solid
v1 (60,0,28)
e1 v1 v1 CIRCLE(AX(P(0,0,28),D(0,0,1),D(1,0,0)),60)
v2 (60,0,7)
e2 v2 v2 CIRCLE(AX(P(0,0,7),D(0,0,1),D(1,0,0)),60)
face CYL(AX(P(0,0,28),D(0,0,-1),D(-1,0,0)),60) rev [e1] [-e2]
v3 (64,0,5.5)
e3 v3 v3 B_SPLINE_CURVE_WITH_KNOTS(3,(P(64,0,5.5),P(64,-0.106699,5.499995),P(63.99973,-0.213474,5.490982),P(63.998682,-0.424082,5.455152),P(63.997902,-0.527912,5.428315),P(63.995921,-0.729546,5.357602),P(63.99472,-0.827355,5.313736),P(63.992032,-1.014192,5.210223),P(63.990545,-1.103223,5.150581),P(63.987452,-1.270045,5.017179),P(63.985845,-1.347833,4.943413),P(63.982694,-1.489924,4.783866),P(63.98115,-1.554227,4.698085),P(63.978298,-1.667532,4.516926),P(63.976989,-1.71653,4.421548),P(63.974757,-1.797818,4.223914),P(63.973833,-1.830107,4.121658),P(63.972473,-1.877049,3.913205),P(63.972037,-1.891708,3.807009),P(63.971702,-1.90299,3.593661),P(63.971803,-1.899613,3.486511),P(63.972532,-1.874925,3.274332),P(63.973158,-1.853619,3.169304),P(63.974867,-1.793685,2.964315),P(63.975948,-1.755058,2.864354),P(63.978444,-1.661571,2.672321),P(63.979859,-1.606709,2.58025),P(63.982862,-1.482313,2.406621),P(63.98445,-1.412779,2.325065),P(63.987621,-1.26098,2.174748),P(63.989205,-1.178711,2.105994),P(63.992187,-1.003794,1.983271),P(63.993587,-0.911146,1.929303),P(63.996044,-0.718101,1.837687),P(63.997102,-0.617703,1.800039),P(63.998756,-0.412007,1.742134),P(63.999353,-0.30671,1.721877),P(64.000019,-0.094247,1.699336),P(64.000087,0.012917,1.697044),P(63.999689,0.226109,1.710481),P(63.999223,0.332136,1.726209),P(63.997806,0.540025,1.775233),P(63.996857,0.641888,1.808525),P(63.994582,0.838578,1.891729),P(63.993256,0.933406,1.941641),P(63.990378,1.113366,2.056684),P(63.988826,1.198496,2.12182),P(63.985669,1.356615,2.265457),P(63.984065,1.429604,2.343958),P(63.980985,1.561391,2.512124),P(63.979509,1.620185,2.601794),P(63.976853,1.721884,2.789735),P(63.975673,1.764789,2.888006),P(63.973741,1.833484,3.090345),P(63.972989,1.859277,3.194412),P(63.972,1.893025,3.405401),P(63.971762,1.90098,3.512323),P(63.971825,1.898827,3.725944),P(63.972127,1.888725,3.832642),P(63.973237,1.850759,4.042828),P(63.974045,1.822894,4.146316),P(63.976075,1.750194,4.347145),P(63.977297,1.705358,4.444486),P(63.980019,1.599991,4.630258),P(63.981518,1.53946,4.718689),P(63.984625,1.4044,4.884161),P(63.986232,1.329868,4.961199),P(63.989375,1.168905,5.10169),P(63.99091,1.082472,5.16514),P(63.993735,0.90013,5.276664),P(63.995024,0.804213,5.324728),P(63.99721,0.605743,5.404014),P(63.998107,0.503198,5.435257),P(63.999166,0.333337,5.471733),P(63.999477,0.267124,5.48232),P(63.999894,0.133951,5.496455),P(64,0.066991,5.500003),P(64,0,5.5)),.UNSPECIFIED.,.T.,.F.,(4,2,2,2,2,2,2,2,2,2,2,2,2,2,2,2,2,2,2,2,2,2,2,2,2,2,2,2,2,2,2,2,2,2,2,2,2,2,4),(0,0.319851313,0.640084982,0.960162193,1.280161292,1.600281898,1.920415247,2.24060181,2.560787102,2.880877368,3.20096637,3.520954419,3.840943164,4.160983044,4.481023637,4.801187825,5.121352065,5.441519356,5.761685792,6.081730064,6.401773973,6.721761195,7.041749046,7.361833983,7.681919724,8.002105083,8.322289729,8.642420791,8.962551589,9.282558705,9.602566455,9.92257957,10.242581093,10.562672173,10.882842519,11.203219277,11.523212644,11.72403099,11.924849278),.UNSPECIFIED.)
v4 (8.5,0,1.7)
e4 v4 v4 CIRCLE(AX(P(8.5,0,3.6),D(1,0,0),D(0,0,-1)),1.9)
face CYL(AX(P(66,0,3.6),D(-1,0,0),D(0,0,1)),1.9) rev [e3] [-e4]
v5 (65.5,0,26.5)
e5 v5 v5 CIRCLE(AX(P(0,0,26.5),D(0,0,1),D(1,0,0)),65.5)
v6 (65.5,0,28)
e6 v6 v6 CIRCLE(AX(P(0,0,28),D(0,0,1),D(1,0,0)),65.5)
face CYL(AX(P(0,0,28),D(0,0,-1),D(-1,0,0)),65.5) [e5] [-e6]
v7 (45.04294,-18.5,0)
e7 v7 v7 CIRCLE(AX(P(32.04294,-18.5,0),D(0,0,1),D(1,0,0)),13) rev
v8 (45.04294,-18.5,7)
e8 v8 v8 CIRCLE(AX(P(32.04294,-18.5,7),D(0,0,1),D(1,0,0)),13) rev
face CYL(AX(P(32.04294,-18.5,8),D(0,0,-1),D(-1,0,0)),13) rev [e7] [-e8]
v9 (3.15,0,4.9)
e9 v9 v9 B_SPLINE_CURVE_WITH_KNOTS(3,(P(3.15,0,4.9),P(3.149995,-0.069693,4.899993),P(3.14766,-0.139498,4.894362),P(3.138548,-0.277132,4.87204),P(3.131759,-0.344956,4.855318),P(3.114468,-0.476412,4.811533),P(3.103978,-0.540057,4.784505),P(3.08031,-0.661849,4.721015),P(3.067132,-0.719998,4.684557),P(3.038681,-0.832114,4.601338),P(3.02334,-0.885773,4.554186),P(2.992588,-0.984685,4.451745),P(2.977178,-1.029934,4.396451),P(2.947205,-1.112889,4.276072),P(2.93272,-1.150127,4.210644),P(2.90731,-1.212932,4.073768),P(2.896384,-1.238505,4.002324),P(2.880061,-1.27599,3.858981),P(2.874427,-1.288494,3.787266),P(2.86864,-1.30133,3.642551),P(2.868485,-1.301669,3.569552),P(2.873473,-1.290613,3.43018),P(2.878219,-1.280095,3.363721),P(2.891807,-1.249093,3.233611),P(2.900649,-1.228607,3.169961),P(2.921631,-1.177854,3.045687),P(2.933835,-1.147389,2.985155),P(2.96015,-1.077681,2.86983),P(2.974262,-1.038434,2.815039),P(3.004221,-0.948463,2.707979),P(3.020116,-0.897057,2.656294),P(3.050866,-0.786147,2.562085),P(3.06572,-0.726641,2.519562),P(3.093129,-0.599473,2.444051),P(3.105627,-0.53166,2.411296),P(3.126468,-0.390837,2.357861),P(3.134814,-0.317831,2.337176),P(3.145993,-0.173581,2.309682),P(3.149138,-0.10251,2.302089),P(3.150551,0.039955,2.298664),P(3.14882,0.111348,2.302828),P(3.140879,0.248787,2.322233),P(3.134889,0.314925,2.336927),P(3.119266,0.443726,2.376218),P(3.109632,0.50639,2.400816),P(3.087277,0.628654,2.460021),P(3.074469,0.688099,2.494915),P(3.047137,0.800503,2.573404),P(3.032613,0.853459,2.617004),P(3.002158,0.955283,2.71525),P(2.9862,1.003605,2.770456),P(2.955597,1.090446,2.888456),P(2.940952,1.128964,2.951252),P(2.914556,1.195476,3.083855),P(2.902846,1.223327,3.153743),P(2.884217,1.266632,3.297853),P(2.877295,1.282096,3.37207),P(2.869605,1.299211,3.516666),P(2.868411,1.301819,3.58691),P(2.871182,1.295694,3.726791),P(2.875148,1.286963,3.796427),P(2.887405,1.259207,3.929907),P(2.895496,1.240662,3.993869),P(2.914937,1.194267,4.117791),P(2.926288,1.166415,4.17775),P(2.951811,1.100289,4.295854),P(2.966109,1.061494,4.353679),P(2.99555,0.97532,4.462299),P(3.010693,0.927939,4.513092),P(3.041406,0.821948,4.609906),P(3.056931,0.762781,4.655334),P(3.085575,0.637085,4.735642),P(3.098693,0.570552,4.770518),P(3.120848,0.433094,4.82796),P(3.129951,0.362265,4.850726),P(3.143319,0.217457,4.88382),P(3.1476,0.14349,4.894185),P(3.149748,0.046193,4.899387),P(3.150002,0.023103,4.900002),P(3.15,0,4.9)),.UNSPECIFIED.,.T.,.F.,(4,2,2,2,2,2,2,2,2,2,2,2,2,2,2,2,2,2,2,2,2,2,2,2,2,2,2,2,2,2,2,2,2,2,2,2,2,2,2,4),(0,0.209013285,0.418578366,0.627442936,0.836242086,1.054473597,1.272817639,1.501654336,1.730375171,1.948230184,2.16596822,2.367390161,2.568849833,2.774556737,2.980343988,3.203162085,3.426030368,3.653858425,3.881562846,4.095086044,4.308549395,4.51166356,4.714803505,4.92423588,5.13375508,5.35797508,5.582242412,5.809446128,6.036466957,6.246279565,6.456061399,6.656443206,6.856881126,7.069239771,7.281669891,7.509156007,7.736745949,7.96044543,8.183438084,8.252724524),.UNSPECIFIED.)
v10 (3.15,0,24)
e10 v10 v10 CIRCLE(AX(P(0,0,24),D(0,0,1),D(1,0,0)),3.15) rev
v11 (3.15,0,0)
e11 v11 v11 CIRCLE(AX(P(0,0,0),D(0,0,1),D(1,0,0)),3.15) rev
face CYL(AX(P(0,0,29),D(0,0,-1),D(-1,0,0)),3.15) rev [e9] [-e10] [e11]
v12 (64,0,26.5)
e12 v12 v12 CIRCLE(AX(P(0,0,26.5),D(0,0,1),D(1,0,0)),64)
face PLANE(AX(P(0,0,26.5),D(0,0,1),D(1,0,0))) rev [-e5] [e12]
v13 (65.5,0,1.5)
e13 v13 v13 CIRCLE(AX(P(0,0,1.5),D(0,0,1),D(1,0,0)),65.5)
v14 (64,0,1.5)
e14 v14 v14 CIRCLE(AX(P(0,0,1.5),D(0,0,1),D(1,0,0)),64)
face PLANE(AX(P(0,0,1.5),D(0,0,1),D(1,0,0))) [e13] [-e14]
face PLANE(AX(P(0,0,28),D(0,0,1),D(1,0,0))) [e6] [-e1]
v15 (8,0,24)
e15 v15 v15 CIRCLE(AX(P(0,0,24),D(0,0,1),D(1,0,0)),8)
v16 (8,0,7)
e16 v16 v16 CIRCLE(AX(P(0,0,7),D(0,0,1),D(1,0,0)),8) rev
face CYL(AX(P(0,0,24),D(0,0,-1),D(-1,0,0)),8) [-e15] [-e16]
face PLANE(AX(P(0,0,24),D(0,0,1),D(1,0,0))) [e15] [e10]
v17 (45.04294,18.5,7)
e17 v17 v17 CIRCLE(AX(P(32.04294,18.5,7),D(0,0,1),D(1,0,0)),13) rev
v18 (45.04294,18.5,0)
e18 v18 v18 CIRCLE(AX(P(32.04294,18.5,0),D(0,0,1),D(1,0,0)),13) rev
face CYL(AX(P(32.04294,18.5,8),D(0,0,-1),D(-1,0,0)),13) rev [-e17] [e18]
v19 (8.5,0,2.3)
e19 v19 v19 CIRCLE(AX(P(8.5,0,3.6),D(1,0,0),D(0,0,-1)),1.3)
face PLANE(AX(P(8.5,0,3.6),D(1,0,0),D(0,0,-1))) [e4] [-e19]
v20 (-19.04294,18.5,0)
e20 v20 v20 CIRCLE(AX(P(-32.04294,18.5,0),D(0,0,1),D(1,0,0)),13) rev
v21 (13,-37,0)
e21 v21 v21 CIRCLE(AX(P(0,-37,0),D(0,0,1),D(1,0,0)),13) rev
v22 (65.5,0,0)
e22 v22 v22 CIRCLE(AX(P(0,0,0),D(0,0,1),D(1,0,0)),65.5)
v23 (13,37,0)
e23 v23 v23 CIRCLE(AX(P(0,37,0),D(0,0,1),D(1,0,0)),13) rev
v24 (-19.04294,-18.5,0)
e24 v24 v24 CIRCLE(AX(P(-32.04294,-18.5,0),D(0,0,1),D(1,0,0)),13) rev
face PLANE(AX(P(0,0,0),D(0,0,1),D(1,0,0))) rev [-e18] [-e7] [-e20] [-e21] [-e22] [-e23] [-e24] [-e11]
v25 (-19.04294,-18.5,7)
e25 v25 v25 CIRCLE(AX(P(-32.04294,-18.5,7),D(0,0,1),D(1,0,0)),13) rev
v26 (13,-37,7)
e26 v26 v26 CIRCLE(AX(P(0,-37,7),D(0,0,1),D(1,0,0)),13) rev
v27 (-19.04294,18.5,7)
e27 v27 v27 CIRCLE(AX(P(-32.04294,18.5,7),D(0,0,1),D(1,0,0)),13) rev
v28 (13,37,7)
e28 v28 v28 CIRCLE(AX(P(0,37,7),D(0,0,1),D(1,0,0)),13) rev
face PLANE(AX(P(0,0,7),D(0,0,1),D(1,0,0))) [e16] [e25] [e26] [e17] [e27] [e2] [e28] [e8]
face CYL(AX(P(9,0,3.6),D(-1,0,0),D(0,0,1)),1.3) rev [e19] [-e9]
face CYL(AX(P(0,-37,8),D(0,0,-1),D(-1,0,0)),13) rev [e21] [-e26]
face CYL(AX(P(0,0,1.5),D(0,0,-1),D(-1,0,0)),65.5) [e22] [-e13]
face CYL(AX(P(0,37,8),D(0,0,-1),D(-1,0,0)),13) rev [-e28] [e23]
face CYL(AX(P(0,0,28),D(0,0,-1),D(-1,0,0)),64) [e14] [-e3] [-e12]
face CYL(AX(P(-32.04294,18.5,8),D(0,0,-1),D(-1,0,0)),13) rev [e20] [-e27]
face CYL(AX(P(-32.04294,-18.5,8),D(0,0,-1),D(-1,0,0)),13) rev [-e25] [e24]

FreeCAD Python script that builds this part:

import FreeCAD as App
import Part
import Sketcher
Q = App.Units.Quantity

doc = App.newDocument("Part")
params = doc.addObject("Spreadsheet::Sheet", "Params")
for row, (alias, value) in enumerate([
    ("sketch1_diameter", "128 mm"),
    ("sketch1_diameter2", "120 mm"),
    ("pad1_length", "28 mm"),
    ("sketch2_diameter", "131 mm"),
    ("sketch2_diameter2", "126 mm"),
    ("pad2_length", "1.5 mm"),
    ("sketch3_diameter", "131 mm"),
    ("sketch3_diameter2", "126 mm"),
    ("pad3_length", "1.5 mm"),
    ("sketch4_diameter", "122 mm"),
    ("pad4_length", "7 mm"),
    ("sketch5_diameter", "16 mm"),
    ("pad5_length", "24 mm"),
    ("sketch6_diameter", "26 mm"),
    ("pocket1_length", "9 mm"),
    ("sketch7_diameter", "6.3 mm"),
    ("pocket2_length", "30 mm"),
    ("sketch8_diameter", "2.6 mm"),
    ("pocket3_length", "9 mm"),
    ("sketch9_diameter", "3.8 mm"),
    ("pocket4_length", "57.5 mm"),
], start=1):
    params.set(f"A{row}", alias)
    params.set(f"B{row}", "=" + value)
    params.setAlias(f"B{row}", alias)

body = doc.addObject("PartDesign::Body", "Body")

# Sketch on XY plane
sketch1 = doc.addObject("Sketcher::SketchObject", "Sketch")
body.addObject(sketch1)
sketch1.AttachmentSupport = (doc.XY_Plane, [""])
sketch1.MapMode = "FlatFace"
sketch1.addGeometry([
    Part.Circle(App.Vector(0, 0, 0), App.Vector(0, 0, 1), 64),
    Part.Circle(App.Vector(0, 0, 0), App.Vector(0, 0, 1), 60),
], False)
sketch1.addConstraint([
    Sketcher.Constraint("Coincident", 0, 3, -1, 1),
    Sketcher.Constraint("Coincident", 1, 3, -1, 1),
    Sketcher.Constraint("Diameter", 0, Q("128 mm")),
    Sketcher.Constraint("Diameter", 1, Q("120 mm")),
])
sketch1.setExpression("Constraints[2]", "Params.sketch1_diameter")
sketch1.setExpression("Constraints[3]", "Params.sketch1_diameter2")
pad1 = doc.addObject("PartDesign::Pad", "Pad")
body.addObject(pad1)
pad1.Profile = sketch1
pad1.setExpression("Length", "Params.pad1_length")

# Sketch on XY plane
sketch2 = doc.addObject("Sketcher::SketchObject", "Sketch001")
body.addObject(sketch2)
sketch2.AttachmentSupport = (doc.XY_Plane, [""])
sketch2.MapMode = "FlatFace"
sketch2.addGeometry([
    Part.Circle(App.Vector(0, 0, 0), App.Vector(0, 0, 1), 66),
    Part.Circle(App.Vector(0, 0, 0), App.Vector(0, 0, 1), 63),
], False)
sketch2.addConstraint([
    Sketcher.Constraint("Coincident", 0, 3, -1, 1),
    Sketcher.Constraint("Coincident", 1, 3, -1, 1),
    Sketcher.Constraint("Diameter", 0, Q("131 mm")),
    Sketcher.Constraint("Diameter", 1, Q("126 mm")),
])
sketch2.setExpression("Constraints[2]", "Params.sketch2_diameter")
sketch2.setExpression("Constraints[3]", "Params.sketch2_diameter2")
pad2 = doc.addObject("PartDesign::Pad", "Pad001")
body.addObject(pad2)
pad2.Profile = sketch2
pad2.setExpression("Length", "Params.pad2_length")

# Sketch on XY plane
sketch3 = doc.addObject("Sketcher::SketchObject", "Sketch002")
body.addObject(sketch3)
sketch3.AttachmentSupport = (doc.XY_Plane, [""])
sketch3.MapMode = "FlatFace"
sketch3.AttachmentOffset = App.Placement(App.Vector(0, 0, 26.5), App.Rotation())
sketch3.addGeometry([
    Part.Circle(App.Vector(0, 0, 0), App.Vector(0, 0, 1), 66),
    Part.Circle(App.Vector(0, 0, 0), App.Vector(0, 0, 1), 63),
], False)
sketch3.addConstraint([
    Sketcher.Constraint("Coincident", 0, 3, -1, 1),
    Sketcher.Constraint("Coincident", 1, 3, -1, 1),
    Sketcher.Constraint("Diameter", 0, Q("131 mm")),
    Sketcher.Constraint("Diameter", 1, Q("126 mm")),
])
sketch3.setExpression("Constraints[2]", "Params.sketch3_diameter")
sketch3.setExpression("Constraints[3]", "Params.sketch3_diameter2")
pad3 = doc.addObject("PartDesign::Pad", "Pad002")
body.addObject(pad3)
pad3.Profile = sketch3
pad3.setExpression("Length", "Params.pad3_length")

# Sketch on XY plane
sketch4 = doc.addObject("Sketcher::SketchObject", "Sketch003")
body.addObject(sketch4)
sketch4.AttachmentSupport = (doc.XY_Plane, [""])
sketch4.MapMode = "FlatFace"
sketch4.addGeometry(Part.Circle(App.Vector(0, 0, 0), App.Vector(0, 0, 1), 61), False)
sketch4.addConstraint([
    Sketcher.Constraint("Coincident", 0, 3, -1, 1),
    Sketcher.Constraint("Diameter", 0, Q("122 mm")),
])
sketch4.setExpression("Constraints[1]", "Params.sketch4_diameter")
pad4 = doc.addObject("PartDesign::Pad", "Pad003")
body.addObject(pad4)
pad4.Profile = sketch4
pad4.setExpression("Length", "Params.pad4_length")

# Sketch on XY plane
sketch5 = doc.addObject("Sketcher::SketchObject", "Sketch004")
body.addObject(sketch5)
sketch5.AttachmentSupport = (doc.XY_Plane, [""])
sketch5.MapMode = "FlatFace"
sketch5.addGeometry(Part.Circle(App.Vector(0, 0, 0), App.Vector(0, 0, 1), 8), False)
sketch5.addConstraint([
    Sketcher.Constraint("Coincident", 0, 3, -1, 1),
    Sketcher.Constraint("Diameter", 0, Q("16 mm")),
])
sketch5.setExpression("Constraints[1]", "Params.sketch5_diameter")
pad5 = doc.addObject("PartDesign::Pad", "Pad004")
body.addObject(pad5)
pad5.Profile = sketch5
pad5.setExpression("Length", "Params.pad5_length")

# Sketch on XY plane
sketch6 = doc.addObject("Sketcher::SketchObject", "Sketch005")
body.addObject(sketch6)
sketch6.AttachmentSupport = (doc.XY_Plane, [""])
sketch6.MapMode = "FlatFace"
sketch6.AttachmentOffset = App.Placement(App.Vector(0, 0, -1), App.Rotation())
sketch6.addGeometry([
    Part.Circle(App.Vector(32, 18, 0), App.Vector(0, 0, 1), 13),  # 0
    Part.Circle(App.Vector(0, 37, 0), App.Vector(0, 0, 1), 13),  # 1
    Part.Circle(App.Vector(-32, 18, 0), App.Vector(0, 0, 1), 13),  # 2
    Part.Circle(App.Vector(-32, -18, 0), App.Vector(0, 0, 1), 13),  # 3
    Part.Circle(App.Vector(0, -37, 0), App.Vector(0, 0, 1), 13),  # 4
    Part.Circle(App.Vector(32, -18, 0), App.Vector(0, 0, 1), 13),  # 5
], False)
sketch6.addConstraint([
    Sketcher.Constraint("Equal", 0, 1),
    Sketcher.Constraint("Equal", 1, 2),
    Sketcher.Constraint("Equal", 2, 3),
    Sketcher.Constraint("Equal", 3, 4),
    Sketcher.Constraint("Equal", 4, 5),
    Sketcher.Constraint("Symmetric", 0, 3, 3, 3, -1, 1),
    Sketcher.Constraint("Symmetric", 1, 3, 4, 3, -1, 1),
    Sketcher.Constraint("Symmetric", 2, 3, 5, 3, -1, 1),
    Sketcher.Constraint("Symmetric", 0, 3, 2, 3, -2),
    Sketcher.Constraint("PointOnObject", 1, 3, -2),
    Sketcher.Constraint("Diameter", 0, Q("26 mm")),
    Sketcher.Constraint("DistanceY", -1, 1, 1, 3, Q("37 mm")),
    Sketcher.Constraint("DistanceY", 3, 3, 2, 3, Q("37 mm")),
    Sketcher.Constraint("DistanceX", -1, 1, 0, 3, Q("32.04294 mm")),
])
sketch6.setExpression("Constraints[10]", "Params.sketch6_diameter")
pocket1 = doc.addObject("PartDesign::Pocket", "Pocket")
body.addObject(pocket1)
pocket1.Profile = sketch6
pocket1.setExpression("Length", "Params.pocket1_length")
pocket1.Reversed = True

# Sketch on XY plane
sketch7 = doc.addObject("Sketcher::SketchObject", "Sketch006")
body.addObject(sketch7)
sketch7.AttachmentSupport = (doc.XY_Plane, [""])
sketch7.MapMode = "FlatFace"
sketch7.AttachmentOffset = App.Placement(App.Vector(0, 0, -1), App.Rotation())
sketch7.addGeometry(Part.Circle(App.Vector(0, 0, 0), App.Vector(0, 0, 1), 3.1), False)
sketch7.addConstraint([
    Sketcher.Constraint("Coincident", 0, 3, -1, 1),
    Sketcher.Constraint("Diameter", 0, Q("6.3 mm")),
])
sketch7.setExpression("Constraints[1]", "Params.sketch7_diameter")
pocket2 = doc.addObject("PartDesign::Pocket", "Pocket001")
body.addObject(pocket2)
pocket2.Profile = sketch7
pocket2.setExpression("Length", "Params.pocket2_length")
pocket2.Reversed = True

# Sketch on YZ plane
sketch8 = doc.addObject("Sketcher::SketchObject", "Sketch007")
body.addObject(sketch8)
sketch8.AttachmentSupport = (doc.YZ_Plane, [""])
sketch8.MapMode = "FlatFace"
sketch8.addGeometry(Part.Circle(App.Vector(0, 3.6, 0), App.Vector(0, 0, 1), 1.3), False)
sketch8.addConstraint([
    Sketcher.Constraint("PointOnObject", 0, 3, -2),
    Sketcher.Constraint("Diameter", 0, Q("2.6 mm")),
    Sketcher.Constraint("DistanceY", -1, 1, 0, 3, Q("3.6 mm")),
])
sketch8.setExpression("Constraints[1]", "Params.sketch8_diameter")
pocket3 = doc.addObject("PartDesign::Pocket", "Pocket002")
body.addObject(pocket3)
pocket3.Profile = sketch8
pocket3.setExpression("Length", "Params.pocket3_length")
pocket3.Reversed = True

# Sketch on YZ plane
sketch9 = doc.addObject("Sketcher::SketchObject", "Sketch008")
body.addObject(sketch9)
sketch9.AttachmentSupport = (doc.YZ_Plane, [""])
sketch9.MapMode = "FlatFace"
sketch9.AttachmentOffset = App.Placement(App.Vector(0, 0, 8.5), App.Rotation())
sketch9.addGeometry(Part.Circle(App.Vector(0, 3.6, 0), App.Vector(0, 0, 1), 1.9), False)
sketch9.addConstraint([
    Sketcher.Constraint("PointOnObject", 0, 3, -2),
    Sketcher.Constraint("Diameter", 0, Q("3.8 mm")),
    Sketcher.Constraint("DistanceY", -1, 1, 0, 3, Q("3.6 mm")),
])
sketch9.setExpression("Constraints[1]", "Params.sketch9_diameter")
pocket4 = doc.addObject("PartDesign::Pocket", "Pocket003")
body.addObject(pocket4)
pocket4.Profile = sketch9
pocket4.setExpression("Length", "Params.pocket4_length")
pocket4.Reversed = True

doc.recompute()
